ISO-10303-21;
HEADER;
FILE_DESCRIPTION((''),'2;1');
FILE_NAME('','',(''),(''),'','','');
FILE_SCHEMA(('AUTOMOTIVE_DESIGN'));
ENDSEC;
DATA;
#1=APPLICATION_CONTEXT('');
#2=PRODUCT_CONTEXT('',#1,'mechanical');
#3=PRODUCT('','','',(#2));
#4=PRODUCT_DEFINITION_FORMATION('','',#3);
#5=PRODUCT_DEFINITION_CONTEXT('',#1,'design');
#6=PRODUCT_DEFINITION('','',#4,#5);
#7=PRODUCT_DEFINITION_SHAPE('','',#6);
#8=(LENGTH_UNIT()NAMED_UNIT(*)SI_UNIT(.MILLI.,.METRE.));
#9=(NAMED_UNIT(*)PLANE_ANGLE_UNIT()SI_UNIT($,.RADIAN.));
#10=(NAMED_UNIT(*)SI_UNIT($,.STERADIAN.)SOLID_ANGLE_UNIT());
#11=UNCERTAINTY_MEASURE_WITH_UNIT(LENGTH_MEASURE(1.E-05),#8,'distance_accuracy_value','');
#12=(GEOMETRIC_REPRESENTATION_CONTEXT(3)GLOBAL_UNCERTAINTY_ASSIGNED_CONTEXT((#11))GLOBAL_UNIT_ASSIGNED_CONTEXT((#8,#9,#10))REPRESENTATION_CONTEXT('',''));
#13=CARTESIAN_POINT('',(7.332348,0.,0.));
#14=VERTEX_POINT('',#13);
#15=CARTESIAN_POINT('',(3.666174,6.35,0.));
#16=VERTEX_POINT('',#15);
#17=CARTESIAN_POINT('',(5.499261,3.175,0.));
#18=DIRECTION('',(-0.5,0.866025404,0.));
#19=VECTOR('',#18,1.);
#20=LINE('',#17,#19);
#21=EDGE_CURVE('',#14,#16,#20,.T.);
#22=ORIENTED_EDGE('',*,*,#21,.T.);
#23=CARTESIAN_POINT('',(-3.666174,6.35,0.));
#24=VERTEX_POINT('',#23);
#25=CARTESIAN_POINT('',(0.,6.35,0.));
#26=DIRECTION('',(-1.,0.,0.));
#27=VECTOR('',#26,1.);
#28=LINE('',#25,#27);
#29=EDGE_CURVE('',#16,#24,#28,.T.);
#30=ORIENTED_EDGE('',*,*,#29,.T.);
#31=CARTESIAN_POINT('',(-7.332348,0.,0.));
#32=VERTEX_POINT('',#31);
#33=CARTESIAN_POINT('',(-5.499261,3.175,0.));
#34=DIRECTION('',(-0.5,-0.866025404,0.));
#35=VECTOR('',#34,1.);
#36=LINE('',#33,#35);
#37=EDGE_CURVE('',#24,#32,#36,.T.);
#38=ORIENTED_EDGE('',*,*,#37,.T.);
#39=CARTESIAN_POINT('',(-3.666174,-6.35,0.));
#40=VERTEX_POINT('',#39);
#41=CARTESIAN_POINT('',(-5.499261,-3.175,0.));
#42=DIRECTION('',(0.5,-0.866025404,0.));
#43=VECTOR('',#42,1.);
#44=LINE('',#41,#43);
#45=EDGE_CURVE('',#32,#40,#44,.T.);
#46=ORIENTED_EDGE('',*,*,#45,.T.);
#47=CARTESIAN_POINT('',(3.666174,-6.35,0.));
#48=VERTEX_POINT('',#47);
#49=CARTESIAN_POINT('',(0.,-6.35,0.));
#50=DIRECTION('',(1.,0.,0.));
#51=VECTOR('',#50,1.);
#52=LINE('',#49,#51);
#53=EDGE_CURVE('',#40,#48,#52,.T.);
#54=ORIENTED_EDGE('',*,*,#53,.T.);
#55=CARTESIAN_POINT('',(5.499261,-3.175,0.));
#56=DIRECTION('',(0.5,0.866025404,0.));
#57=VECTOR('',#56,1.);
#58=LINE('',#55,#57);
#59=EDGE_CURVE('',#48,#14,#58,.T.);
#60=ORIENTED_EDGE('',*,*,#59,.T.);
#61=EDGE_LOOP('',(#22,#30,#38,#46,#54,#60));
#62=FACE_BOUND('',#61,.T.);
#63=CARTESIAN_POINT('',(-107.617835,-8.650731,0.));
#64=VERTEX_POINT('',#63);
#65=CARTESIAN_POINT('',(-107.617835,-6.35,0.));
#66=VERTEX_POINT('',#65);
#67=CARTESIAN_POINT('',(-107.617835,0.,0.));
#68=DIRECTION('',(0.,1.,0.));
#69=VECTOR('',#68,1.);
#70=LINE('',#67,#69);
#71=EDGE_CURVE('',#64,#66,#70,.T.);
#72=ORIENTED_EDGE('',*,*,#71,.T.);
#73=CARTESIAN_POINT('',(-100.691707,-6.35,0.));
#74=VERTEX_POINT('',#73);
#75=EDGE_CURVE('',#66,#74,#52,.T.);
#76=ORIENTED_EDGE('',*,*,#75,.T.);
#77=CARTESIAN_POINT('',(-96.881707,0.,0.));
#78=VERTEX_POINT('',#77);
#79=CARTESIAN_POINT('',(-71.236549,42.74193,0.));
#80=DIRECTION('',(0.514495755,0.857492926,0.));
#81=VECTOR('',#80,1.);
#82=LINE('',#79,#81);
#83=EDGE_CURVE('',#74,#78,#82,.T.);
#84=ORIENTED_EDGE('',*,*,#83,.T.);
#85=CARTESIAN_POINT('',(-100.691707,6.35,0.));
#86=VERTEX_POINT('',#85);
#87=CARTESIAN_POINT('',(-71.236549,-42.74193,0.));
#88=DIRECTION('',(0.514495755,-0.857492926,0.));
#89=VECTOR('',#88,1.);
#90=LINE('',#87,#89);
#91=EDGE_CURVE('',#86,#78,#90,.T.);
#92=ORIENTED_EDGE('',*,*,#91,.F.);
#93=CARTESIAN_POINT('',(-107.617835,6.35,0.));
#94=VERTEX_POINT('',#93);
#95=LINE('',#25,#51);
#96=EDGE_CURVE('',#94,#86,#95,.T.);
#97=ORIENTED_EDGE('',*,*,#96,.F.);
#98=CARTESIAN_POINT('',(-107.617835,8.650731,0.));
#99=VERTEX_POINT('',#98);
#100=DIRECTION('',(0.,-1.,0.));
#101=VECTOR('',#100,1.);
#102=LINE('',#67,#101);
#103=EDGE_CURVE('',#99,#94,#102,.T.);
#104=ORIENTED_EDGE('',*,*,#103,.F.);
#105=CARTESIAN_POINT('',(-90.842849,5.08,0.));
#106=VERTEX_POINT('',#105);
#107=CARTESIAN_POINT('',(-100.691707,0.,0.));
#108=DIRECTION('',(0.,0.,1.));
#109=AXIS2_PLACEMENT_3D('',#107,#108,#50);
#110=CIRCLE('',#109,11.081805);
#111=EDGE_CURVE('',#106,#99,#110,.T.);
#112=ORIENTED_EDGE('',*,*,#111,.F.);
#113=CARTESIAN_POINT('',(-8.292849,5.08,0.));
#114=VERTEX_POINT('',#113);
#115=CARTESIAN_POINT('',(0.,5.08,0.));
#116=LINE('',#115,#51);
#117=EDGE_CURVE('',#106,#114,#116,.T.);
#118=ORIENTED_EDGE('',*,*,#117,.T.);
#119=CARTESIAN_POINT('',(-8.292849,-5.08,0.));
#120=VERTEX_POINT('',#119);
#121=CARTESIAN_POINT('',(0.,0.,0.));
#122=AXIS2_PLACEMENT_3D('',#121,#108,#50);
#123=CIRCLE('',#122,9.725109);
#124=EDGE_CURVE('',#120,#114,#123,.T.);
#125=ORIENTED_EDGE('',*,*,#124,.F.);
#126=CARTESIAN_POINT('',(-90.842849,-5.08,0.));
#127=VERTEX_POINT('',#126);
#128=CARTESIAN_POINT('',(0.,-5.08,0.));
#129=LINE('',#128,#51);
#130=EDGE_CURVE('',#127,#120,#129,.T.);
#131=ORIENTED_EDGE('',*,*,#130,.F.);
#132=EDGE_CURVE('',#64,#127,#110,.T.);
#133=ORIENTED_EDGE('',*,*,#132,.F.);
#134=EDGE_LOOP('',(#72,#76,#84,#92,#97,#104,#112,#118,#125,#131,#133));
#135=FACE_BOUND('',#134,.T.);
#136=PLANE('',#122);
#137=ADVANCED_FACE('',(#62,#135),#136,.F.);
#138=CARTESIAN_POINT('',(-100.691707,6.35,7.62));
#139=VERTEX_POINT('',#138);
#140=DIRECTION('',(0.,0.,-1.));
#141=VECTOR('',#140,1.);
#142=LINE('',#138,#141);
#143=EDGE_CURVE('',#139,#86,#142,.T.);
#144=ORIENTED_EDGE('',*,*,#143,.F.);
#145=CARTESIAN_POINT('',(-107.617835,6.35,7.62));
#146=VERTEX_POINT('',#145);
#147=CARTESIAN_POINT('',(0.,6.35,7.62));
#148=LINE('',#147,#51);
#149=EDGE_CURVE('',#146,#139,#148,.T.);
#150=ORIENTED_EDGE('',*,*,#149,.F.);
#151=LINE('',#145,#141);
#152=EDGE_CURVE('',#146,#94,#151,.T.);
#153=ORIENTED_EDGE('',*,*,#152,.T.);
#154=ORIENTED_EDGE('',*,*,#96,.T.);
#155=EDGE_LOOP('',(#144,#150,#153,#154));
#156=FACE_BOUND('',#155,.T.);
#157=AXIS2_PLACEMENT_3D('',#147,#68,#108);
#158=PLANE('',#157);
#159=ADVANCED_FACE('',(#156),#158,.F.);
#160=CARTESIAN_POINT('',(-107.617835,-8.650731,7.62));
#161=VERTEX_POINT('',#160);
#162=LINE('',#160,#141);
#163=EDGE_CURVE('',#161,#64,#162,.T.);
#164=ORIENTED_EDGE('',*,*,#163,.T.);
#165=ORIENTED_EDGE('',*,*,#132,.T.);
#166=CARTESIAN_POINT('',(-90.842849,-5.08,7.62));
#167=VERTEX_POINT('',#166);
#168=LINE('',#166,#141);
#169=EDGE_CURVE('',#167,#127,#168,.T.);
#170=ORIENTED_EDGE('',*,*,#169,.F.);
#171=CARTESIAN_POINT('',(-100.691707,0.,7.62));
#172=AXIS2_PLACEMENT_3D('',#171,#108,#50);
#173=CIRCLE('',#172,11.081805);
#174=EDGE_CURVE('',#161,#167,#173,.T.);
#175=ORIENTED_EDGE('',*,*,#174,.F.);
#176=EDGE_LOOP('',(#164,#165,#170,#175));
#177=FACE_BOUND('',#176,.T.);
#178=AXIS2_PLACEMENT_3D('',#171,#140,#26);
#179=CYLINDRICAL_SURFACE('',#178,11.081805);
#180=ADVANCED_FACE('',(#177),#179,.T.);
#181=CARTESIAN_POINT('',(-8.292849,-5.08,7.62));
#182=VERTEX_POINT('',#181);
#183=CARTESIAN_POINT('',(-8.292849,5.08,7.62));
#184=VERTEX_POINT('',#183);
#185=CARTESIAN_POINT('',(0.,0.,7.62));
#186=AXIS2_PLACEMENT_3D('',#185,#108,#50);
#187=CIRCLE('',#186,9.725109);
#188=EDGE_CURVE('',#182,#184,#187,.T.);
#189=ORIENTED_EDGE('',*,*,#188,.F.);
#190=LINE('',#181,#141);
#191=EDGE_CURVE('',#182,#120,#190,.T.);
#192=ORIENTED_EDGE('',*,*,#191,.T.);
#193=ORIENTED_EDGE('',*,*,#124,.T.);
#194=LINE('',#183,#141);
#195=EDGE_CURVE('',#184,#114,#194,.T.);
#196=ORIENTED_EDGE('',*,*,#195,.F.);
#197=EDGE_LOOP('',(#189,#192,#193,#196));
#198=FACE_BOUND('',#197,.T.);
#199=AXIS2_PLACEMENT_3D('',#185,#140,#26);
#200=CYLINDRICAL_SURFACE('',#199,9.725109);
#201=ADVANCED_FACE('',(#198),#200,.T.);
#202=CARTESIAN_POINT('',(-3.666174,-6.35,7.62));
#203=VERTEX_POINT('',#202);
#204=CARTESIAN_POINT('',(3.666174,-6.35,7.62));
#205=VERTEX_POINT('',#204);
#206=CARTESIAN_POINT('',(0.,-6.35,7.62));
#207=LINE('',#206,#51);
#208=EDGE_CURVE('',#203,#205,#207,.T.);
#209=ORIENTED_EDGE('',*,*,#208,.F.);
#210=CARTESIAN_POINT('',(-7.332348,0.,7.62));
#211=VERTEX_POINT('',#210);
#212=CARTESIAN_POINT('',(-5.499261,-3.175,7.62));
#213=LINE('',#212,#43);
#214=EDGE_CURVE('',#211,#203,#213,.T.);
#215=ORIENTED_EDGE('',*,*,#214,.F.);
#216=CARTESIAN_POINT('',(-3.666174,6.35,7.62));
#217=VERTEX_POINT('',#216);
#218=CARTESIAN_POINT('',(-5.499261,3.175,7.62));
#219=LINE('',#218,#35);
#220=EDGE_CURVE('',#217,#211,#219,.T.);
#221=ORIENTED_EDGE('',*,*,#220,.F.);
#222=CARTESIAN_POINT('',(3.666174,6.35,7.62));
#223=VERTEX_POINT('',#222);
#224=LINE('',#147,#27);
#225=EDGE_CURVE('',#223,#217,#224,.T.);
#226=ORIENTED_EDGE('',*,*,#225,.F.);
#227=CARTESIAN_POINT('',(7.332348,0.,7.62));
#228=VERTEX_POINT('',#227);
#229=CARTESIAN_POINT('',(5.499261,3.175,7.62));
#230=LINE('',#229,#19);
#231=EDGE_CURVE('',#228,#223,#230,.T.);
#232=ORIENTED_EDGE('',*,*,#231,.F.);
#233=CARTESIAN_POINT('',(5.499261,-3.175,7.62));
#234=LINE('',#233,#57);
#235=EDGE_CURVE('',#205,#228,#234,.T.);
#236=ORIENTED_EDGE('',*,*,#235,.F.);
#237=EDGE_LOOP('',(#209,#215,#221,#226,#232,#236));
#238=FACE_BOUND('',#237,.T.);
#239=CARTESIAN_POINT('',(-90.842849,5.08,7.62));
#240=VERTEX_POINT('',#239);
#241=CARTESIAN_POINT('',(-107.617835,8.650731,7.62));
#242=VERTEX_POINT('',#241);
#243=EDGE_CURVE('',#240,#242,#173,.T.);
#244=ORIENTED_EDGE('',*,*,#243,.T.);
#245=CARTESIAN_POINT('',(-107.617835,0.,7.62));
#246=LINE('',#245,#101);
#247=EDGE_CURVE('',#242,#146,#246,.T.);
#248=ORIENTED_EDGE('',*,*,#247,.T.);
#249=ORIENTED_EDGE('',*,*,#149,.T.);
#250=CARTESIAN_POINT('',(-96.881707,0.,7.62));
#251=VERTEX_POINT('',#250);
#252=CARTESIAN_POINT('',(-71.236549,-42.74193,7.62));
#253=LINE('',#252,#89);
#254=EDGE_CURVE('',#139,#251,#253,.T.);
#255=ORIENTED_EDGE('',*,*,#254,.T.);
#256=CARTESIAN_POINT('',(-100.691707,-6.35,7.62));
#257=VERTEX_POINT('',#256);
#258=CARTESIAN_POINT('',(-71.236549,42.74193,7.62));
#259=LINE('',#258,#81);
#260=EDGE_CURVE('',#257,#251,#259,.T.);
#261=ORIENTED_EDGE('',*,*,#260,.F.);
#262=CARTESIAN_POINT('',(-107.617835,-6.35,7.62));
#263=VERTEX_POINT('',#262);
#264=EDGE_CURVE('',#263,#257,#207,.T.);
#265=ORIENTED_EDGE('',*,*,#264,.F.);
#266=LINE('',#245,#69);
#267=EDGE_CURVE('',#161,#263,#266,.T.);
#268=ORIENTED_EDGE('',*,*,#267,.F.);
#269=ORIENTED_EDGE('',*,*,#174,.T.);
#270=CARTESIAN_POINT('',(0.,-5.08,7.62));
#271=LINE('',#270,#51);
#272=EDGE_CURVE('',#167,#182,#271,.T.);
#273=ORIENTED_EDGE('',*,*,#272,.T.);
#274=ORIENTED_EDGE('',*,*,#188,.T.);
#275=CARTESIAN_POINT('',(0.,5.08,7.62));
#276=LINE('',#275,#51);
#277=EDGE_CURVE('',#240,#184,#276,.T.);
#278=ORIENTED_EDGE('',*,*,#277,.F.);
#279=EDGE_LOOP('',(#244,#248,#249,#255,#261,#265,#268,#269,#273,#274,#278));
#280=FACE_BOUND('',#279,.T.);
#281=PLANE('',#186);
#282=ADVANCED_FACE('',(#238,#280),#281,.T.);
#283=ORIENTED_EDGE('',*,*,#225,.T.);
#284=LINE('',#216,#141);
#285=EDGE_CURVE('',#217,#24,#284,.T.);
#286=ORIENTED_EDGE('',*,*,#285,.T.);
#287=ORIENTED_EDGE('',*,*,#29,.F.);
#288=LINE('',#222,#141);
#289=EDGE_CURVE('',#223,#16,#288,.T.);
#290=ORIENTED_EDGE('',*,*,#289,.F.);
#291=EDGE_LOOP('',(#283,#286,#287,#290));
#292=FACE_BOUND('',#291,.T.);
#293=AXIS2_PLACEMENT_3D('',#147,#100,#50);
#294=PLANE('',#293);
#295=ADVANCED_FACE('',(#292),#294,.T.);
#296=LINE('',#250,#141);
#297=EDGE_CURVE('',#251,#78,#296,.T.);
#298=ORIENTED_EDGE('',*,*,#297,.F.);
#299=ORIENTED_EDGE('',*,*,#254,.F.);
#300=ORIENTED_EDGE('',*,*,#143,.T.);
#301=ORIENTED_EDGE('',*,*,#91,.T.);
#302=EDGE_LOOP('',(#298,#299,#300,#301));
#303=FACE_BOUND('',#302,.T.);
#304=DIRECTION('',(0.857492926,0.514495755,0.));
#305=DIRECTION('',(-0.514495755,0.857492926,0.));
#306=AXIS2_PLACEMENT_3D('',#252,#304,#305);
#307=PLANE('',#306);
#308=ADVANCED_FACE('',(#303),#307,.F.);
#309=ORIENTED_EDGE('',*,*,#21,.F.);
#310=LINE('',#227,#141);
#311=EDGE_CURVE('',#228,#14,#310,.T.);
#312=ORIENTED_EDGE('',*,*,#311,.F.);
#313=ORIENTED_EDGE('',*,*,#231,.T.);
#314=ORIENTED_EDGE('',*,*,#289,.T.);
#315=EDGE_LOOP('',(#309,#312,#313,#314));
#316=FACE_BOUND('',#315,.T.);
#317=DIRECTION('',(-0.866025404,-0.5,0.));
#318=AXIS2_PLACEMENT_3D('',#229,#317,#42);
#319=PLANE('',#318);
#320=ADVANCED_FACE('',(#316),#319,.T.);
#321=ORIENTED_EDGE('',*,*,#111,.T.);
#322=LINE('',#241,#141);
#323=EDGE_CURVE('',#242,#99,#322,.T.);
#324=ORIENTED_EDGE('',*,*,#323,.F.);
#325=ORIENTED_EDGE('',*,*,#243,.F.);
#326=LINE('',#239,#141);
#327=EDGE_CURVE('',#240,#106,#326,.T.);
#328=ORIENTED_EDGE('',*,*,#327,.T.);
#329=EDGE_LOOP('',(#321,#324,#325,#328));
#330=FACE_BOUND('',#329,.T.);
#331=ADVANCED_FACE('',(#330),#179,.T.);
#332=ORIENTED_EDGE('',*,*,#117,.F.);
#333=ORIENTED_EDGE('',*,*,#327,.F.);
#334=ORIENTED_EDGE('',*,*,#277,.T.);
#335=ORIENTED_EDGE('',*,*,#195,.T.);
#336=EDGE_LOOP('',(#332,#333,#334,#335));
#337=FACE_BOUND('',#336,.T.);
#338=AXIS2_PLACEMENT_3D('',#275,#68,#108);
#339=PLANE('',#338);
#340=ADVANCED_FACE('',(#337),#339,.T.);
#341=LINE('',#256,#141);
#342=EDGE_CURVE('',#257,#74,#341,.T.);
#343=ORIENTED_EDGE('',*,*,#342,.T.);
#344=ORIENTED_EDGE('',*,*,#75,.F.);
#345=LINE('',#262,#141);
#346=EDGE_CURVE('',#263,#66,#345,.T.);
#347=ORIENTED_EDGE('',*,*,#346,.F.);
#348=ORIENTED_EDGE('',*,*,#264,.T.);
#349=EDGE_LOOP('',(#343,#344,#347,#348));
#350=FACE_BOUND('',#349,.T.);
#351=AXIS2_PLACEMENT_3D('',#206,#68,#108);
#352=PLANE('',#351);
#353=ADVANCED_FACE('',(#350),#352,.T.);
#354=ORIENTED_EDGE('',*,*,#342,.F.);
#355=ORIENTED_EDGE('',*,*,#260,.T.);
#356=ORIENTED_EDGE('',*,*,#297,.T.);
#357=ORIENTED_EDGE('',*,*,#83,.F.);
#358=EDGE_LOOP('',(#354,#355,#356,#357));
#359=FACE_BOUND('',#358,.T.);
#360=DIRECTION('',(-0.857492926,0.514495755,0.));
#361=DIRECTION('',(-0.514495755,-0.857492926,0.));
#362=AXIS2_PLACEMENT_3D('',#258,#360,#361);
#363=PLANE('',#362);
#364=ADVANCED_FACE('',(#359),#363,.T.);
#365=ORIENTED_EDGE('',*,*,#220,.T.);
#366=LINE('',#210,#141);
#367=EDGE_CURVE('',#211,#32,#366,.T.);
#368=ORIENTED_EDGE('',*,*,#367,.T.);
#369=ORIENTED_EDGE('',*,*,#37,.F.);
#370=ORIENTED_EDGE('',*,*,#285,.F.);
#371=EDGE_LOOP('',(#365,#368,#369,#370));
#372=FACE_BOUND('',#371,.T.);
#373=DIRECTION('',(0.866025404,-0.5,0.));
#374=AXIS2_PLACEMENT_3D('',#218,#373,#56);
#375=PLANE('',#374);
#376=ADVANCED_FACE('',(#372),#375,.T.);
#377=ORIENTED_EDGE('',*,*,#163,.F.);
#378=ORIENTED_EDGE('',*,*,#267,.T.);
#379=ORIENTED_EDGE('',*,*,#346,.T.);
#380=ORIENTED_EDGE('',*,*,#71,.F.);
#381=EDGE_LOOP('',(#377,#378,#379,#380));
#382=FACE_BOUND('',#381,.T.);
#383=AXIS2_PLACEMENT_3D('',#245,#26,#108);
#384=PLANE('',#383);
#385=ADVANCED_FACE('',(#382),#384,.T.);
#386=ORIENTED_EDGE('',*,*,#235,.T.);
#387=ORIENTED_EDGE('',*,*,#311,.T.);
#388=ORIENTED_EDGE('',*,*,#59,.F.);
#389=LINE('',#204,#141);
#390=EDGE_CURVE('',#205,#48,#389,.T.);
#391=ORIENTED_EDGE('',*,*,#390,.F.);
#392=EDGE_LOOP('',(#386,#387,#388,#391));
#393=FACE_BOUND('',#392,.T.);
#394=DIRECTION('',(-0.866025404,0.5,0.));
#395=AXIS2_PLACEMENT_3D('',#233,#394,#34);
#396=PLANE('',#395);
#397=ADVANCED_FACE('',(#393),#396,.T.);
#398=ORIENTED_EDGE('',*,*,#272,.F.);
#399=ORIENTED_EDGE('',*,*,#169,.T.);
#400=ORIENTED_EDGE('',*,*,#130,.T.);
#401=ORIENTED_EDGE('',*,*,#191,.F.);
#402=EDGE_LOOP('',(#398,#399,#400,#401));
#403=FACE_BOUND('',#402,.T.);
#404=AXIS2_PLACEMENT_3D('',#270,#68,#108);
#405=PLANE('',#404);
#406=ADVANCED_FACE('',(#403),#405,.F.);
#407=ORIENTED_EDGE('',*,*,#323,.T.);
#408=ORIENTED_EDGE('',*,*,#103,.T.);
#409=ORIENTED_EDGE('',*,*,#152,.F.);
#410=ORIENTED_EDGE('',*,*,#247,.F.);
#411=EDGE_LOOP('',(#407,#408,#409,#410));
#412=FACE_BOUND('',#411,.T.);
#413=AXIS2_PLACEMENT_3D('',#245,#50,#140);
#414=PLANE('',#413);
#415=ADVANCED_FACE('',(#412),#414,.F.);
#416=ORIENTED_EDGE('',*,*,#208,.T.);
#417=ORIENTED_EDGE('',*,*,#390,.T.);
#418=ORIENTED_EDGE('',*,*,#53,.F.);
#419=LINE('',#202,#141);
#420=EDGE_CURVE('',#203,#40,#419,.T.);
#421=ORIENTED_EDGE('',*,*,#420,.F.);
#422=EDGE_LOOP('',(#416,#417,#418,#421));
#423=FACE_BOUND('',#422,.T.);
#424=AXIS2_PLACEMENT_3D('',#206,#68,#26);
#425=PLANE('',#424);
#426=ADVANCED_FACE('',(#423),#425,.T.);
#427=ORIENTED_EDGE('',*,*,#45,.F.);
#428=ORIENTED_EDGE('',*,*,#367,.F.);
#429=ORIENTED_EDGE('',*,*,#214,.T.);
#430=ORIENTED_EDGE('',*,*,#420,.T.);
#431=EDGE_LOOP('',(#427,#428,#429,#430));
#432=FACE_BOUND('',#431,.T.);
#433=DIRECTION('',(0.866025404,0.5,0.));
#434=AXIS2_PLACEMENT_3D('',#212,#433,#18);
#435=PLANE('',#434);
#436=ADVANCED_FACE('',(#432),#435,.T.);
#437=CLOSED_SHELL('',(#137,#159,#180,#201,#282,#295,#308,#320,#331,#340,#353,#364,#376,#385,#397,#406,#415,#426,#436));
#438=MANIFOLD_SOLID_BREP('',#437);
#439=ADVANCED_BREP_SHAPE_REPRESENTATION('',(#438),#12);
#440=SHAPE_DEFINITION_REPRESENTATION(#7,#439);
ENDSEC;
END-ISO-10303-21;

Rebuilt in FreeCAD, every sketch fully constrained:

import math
import FreeCAD as App
import Part
import Sketcher
from FreeCAD import Vector
Q = App.Units.Quantity

doc = App.newDocument("Part")
body = doc.addObject("PartDesign::Body", "Body")

sketch1 = body.newObject("Sketcher::SketchObject", "Sketch")
sketch1.AttachmentSupport = (doc.getObject("XY_Plane"), [""])
sketch1.MapMode = "FlatFace"
sketch1.addGeometry([
    Part.ArcOfCircle(Part.Circle(Vector(-100.7, 0, 0), Vector(0, 0, 1), 11.1), math.radians(-129), math.radians(-27)),
    Part.LineSegment(Vector(-90.8, -5.1, 0), Vector(-8.3, -5.1, 0)),
    Part.ArcOfCircle(Part.Circle(Vector(0, 0, 0), Vector(0, 0, 1), 9.7), math.radians(-149), math.radians(149)),
    Part.LineSegment(Vector(-8.3, 5.1, 0), Vector(-90.8, 5.1, 0)),
    Part.ArcOfCircle(Part.Circle(Vector(-100.7, 0, 0), Vector(0, 0, 1), 11.1), math.radians(27), math.radians(129)),
    Part.LineSegment(Vector(-107.6, 8.7, 0), Vector(-107.6, 6.3, 0)),
    Part.LineSegment(Vector(-107.6, 6.3, 0), Vector(-100.7, 6.3, 0)),
    Part.LineSegment(Vector(-100.7, 6.3, 0), Vector(-96.9, 0, 0)),
    Part.LineSegment(Vector(-96.9, 0, 0), Vector(-100.7, -6.3, 0)),
    Part.LineSegment(Vector(-100.7, -6.3, 0), Vector(-107.6, -6.3, 0)),
    Part.LineSegment(Vector(-107.6, -6.3, 0), Vector(-107.6, -8.7, 0)),
    Part.LineSegment(Vector(3.7, -6.3, 0), Vector(-3.7, -6.3, 0)),
    Part.LineSegment(Vector(-3.7, -6.3, 0), Vector(-7.3, 0, 0)),
    Part.LineSegment(Vector(-7.3, 0, 0), Vector(-3.7, 6.3, 0)),
    Part.LineSegment(Vector(-3.7, 6.3, 0), Vector(3.7, 6.3, 0)),
    Part.LineSegment(Vector(3.7, 6.3, 0), Vector(7.3, 0, 0)),
    Part.LineSegment(Vector(7.3, 0, 0), Vector(3.7, -6.3, 0)),
], False)
sketch1.addConstraint([
    Sketcher.Constraint("Coincident", 0, 2, 1, 1),
    Sketcher.Constraint("Coincident", 1, 2, 2, 1),
    Sketcher.Constraint("Coincident", 2, 2, 3, 1),
    Sketcher.Constraint("Coincident", 3, 2, 4, 1),
    Sketcher.Constraint("Coincident", 4, 2, 5, 1),
    Sketcher.Constraint("Coincident", 5, 2, 6, 1),
    Sketcher.Constraint("Coincident", 6, 2, 7, 1),
    Sketcher.Constraint("Coincident", 7, 2, 8, 1),
    Sketcher.Constraint("Coincident", 8, 2, 9, 1),
    Sketcher.Constraint("Coincident", 9, 2, 10, 1),
    Sketcher.Constraint("Coincident", 10, 2, 0, 1),
    Sketcher.Constraint("Coincident", 11, 2, 12, 1),
    Sketcher.Constraint("Coincident", 12, 2, 13, 1),
    Sketcher.Constraint("Coincident", 13, 2, 14, 1),
    Sketcher.Constraint("Coincident", 14, 2, 15, 1),
    Sketcher.Constraint("Coincident", 15, 2, 16, 1),
    Sketcher.Constraint("Coincident", 16, 2, 11, 1),
    Sketcher.Constraint("Horizontal", 1),
    Sketcher.Constraint("Horizontal", 3),
    Sketcher.Constraint("Vertical", 5),
    Sketcher.Constraint("Horizontal", 6),
    Sketcher.Constraint("Horizontal", 9),
    Sketcher.Constraint("Vertical", 10),
    Sketcher.Constraint("Horizontal", 11),
    Sketcher.Constraint("Horizontal", 14),
    Sketcher.Constraint("Coincident", 2, 3, -1, 1),
    Sketcher.Constraint("Coincident", 4, 3, 0, 3),
    Sketcher.Constraint("Equal", 0, 4),
    Sketcher.Constraint("Symmetric", 11, 2, 14, 2, -1, 1),
    Sketcher.Constraint("Symmetric", 12, 2, 15, 2, -1, 1),
    Sketcher.Constraint("Symmetric", 0, 2, 3, 2, -1),
    Sketcher.Constraint("Symmetric", 6, 2, 8, 2, -1),
    Sketcher.Constraint("PointOnObject", 7, 2, -1),
    Sketcher.Constraint("PointOnObject", 12, 2, -1),
    Sketcher.Constraint("Parallel", 13, 16),
    Sketcher.Constraint("Horizontal", 9, 2, 11, 2),
    Sketcher.Constraint("Vertical", 4, 3, 6, 2),
    Sketcher.Constraint("Vertical", 5, 2, 9, 2),
    Sketcher.Constraint("Vertical", 11, 2, 13, 2),
    Sketcher.Constraint("Angle", 12, Q("120 deg")),
    Sketcher.Constraint("DistanceX", 1, 1, 1, 2, Q("3.25 in")),
    Sketcher.Constraint("DistanceY", 0, 2, -1, 1, Q("0.2 in")),
    Sketcher.Constraint("DistanceY", 8, 2, 6, 2, Q("0.5 in")),
    Sketcher.Constraint("DistanceX", 0, 3, 7, 2, Q("0.15 in")),
    Sketcher.Constraint("Radius", 2, Q("9.725109 mm")),
    Sketcher.Constraint("Radius", 0, Q("11.081805 mm")),
    Sketcher.Constraint("DistanceX", 6, 1, 6, 2, Q("6.926128 mm")),
    Sketcher.Constraint("DistanceX", 11, 2, 11, 1, Q("7.332348 mm")),
])
pad1 = body.newObject("PartDesign::Pad", "Pad")
pad1.Profile = sketch1
pad1.Length = Q("0.3 in")

doc.recompute()
